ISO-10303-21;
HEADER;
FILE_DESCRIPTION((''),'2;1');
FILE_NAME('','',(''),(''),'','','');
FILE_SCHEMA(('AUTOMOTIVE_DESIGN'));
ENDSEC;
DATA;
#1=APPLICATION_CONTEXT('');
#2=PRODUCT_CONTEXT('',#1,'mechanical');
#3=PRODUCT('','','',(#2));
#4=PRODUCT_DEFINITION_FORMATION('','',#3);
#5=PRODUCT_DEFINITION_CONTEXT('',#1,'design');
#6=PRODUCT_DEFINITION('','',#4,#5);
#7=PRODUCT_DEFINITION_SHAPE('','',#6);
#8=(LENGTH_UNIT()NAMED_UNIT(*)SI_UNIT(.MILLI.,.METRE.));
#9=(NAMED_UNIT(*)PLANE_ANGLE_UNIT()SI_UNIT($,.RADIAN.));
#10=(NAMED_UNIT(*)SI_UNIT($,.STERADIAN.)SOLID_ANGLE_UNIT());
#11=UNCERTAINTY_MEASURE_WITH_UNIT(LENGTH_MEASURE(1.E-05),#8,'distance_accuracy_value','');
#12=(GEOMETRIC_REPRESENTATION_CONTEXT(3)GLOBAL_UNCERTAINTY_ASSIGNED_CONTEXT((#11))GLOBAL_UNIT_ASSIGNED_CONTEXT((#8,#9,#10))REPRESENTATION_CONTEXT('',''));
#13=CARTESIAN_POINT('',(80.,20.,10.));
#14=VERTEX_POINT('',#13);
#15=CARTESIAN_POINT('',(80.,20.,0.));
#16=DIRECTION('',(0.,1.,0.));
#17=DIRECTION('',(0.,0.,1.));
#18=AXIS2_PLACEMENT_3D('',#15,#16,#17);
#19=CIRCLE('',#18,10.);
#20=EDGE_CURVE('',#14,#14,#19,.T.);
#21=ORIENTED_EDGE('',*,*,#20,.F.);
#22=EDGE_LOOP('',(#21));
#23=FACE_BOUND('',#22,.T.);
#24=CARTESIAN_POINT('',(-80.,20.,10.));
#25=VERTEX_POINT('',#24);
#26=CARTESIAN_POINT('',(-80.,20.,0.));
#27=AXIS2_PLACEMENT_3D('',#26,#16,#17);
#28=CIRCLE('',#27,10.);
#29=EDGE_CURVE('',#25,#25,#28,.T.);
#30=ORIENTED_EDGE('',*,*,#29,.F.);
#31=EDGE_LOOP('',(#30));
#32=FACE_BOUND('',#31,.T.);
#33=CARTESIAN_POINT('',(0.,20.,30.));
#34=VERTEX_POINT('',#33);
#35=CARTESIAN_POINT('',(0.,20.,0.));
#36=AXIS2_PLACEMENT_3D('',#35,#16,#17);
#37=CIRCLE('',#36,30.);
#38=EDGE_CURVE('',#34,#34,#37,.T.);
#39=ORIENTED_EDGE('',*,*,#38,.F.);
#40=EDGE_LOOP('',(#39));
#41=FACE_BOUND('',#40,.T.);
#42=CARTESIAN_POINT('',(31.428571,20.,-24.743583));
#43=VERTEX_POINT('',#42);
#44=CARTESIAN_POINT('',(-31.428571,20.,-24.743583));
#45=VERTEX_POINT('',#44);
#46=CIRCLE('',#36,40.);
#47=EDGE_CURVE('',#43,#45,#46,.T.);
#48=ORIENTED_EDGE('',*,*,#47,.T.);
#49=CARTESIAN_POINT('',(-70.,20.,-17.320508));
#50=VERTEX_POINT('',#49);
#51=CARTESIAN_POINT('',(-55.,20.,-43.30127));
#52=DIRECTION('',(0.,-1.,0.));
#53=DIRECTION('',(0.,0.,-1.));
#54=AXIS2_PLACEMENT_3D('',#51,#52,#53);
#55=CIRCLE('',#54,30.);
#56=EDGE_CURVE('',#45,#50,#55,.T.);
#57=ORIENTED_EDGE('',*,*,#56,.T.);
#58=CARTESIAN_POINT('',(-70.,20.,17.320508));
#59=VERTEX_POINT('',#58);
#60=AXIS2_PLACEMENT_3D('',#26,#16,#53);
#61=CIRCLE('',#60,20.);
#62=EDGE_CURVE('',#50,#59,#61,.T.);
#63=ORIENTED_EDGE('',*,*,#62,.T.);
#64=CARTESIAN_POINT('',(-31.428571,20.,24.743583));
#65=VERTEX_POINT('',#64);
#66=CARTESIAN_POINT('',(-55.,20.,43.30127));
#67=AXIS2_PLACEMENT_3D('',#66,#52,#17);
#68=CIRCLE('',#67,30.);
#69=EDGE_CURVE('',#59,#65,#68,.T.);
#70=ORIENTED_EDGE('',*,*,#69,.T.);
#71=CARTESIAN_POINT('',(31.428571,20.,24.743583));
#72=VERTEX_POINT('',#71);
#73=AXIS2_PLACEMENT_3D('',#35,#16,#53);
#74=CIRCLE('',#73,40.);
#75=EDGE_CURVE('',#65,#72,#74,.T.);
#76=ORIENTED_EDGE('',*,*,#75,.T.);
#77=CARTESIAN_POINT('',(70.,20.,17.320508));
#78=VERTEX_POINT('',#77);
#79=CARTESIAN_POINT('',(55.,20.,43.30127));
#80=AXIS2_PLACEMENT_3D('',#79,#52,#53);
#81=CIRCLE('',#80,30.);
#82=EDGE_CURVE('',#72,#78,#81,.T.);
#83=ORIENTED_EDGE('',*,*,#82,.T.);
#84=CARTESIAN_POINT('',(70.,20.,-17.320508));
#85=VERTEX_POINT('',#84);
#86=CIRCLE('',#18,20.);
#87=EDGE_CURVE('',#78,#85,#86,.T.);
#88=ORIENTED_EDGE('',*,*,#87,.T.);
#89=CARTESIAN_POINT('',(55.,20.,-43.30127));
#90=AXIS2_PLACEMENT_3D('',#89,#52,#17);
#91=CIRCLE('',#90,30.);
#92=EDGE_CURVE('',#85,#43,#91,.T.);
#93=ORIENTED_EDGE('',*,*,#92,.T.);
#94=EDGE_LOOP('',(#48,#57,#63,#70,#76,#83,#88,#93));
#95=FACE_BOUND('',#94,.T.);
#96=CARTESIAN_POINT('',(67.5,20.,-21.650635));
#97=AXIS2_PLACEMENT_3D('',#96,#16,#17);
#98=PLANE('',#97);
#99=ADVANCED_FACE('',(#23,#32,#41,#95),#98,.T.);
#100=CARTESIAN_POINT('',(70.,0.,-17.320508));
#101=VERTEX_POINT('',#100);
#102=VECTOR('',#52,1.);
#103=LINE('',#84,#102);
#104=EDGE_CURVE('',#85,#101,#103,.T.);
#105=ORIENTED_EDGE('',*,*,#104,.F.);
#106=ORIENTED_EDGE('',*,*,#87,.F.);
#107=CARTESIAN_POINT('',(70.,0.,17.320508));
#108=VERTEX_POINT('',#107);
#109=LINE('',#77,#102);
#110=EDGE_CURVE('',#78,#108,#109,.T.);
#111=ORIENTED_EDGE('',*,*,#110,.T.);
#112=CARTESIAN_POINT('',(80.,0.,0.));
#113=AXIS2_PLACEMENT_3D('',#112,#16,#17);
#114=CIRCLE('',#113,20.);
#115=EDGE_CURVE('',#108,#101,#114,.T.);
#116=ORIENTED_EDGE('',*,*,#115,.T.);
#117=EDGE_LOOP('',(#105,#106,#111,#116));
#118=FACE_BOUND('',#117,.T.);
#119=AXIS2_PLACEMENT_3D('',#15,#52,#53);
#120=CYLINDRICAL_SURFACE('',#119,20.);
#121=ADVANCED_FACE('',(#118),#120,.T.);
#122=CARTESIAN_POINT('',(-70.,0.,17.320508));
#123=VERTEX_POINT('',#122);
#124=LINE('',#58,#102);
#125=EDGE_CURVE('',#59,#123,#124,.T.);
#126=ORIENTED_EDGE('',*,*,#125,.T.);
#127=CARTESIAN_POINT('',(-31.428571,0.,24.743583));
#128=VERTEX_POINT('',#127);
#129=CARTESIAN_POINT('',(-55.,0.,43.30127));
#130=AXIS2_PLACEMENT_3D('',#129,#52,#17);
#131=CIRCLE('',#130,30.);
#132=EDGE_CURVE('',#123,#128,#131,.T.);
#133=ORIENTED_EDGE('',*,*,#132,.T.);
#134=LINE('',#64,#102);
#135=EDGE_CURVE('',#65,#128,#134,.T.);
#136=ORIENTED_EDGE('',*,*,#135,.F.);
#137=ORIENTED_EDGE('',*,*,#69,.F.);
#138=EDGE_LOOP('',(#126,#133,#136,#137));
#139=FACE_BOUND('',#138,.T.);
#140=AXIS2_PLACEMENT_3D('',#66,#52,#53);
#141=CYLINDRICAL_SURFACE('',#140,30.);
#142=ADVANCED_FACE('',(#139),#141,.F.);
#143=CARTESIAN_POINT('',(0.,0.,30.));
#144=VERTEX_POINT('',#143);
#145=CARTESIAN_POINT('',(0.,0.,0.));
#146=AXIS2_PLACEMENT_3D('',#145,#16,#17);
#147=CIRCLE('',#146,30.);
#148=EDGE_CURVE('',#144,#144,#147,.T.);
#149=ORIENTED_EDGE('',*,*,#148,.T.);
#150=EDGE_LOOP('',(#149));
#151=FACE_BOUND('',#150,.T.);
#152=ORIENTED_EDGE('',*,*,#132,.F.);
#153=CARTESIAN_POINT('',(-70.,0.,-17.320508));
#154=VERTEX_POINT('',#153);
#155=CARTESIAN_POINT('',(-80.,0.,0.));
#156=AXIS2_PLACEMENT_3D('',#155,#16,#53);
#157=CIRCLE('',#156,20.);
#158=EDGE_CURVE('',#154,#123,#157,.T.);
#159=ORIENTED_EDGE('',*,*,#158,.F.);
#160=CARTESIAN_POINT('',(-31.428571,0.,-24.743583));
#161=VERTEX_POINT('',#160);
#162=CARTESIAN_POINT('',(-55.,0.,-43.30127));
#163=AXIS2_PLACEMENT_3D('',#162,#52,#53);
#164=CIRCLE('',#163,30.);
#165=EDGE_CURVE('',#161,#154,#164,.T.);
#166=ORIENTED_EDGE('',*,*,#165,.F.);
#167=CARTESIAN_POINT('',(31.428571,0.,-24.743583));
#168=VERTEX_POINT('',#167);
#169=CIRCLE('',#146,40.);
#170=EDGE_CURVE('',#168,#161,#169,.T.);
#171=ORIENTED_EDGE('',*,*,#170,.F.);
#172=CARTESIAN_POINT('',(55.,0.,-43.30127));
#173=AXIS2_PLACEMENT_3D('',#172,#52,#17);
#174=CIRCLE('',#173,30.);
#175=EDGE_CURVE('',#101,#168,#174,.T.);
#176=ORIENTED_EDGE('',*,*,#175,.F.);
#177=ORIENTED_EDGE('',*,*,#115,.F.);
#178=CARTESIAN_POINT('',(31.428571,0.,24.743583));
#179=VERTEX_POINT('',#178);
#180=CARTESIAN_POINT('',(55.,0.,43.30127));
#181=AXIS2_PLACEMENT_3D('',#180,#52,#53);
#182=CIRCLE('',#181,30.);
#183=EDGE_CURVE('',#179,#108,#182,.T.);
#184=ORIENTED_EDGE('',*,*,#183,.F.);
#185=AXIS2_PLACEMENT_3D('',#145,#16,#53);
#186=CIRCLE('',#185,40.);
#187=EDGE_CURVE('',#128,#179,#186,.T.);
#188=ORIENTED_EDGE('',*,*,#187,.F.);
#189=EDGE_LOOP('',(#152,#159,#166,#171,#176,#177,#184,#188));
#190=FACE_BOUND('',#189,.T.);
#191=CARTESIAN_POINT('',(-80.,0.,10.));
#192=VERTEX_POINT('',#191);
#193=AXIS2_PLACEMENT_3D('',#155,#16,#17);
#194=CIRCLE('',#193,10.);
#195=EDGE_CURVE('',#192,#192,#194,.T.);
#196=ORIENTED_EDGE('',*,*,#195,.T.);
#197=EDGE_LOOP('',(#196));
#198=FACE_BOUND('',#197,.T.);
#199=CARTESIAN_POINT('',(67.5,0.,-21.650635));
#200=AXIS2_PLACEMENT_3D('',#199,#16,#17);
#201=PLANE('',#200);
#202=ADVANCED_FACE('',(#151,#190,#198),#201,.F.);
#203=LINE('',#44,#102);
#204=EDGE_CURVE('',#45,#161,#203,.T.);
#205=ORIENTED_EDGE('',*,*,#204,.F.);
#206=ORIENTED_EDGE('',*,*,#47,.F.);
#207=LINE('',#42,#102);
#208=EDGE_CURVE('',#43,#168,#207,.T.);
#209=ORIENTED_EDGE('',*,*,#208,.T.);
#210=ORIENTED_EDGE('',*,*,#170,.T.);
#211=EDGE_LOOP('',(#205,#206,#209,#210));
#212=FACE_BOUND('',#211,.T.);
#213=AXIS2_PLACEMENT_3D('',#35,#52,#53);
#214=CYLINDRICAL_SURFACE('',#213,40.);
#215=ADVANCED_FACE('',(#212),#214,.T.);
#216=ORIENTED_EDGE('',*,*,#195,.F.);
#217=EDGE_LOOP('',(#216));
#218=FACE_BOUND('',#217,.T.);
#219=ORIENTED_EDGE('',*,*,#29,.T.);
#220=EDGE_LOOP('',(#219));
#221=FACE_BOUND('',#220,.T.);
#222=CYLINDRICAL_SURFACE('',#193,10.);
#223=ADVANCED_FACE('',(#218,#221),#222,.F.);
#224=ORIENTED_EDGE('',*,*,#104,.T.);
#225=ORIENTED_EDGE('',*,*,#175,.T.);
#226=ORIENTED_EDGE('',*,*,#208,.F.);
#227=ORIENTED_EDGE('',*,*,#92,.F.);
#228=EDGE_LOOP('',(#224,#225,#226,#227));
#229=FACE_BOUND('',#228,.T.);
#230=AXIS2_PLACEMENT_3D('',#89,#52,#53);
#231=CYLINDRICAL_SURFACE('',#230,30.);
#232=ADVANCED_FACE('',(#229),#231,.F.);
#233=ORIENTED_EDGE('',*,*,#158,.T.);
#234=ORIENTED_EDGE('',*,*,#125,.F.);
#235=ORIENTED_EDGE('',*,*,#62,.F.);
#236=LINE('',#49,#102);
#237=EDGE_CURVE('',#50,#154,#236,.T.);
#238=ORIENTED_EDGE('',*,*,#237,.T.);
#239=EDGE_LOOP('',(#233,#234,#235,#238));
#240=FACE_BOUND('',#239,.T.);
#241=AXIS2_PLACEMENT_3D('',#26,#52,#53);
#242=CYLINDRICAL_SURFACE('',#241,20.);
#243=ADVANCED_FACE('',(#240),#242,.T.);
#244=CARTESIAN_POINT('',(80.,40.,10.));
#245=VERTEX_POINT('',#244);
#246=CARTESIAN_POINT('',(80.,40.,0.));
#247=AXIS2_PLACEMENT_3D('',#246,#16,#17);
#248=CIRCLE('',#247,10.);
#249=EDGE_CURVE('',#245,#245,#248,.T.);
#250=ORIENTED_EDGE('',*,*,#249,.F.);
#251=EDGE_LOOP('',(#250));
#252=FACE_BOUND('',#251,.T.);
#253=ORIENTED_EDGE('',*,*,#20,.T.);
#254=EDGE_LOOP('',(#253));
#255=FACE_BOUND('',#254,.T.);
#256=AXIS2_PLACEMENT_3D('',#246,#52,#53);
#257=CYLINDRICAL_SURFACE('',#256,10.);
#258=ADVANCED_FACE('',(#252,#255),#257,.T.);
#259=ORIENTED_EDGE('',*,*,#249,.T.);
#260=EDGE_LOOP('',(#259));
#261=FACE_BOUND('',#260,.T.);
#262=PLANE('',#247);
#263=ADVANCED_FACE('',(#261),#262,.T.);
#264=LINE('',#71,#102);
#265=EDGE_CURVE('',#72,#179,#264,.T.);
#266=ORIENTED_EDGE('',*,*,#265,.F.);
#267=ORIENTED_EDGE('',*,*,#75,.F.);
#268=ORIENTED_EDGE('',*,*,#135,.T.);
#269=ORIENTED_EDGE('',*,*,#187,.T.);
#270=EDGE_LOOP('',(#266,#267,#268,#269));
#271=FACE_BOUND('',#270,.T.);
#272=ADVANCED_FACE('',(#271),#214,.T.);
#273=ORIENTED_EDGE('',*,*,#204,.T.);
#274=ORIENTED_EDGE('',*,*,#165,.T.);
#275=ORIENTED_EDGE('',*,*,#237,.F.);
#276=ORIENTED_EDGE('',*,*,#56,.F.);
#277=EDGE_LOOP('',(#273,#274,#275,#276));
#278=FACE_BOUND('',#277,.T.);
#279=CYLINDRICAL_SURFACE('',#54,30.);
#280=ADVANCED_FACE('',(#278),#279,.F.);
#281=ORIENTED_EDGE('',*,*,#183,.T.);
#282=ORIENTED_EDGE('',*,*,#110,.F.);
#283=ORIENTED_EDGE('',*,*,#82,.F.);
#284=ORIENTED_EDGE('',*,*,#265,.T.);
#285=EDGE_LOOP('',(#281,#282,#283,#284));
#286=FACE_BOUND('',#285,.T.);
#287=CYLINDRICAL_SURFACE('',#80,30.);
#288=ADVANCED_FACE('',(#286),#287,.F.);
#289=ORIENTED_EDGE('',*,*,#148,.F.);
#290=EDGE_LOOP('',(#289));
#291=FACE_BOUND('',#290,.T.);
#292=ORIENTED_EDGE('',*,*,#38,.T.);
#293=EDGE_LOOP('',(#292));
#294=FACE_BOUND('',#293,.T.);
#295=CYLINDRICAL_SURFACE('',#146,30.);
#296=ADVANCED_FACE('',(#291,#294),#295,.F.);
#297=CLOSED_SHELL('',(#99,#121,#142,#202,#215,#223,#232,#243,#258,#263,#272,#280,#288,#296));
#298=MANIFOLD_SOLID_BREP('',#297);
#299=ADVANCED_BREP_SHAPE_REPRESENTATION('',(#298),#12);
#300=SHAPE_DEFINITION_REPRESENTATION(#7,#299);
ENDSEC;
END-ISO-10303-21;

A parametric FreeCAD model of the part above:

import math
import FreeCAD as App
import Part
import Sketcher

V = App.Vector

doc = App.newDocument("Part")
body = doc.addObject("PartDesign::Body", "Body")

# Sketch on XZ plane
sketch1 = body.newObject("Sketcher::SketchObject", "Sketch")
sketch1.AttachmentSupport = (doc.getObject("XZ_Plane"), [""])
sketch1.MapMode = "FlatFace"
sketch1.addGeometry([
    Part.ArcOfCircle(Part.Circle(V(80, 0, 0), V(0, 0, 1), 20), math.radians(-120), math.radians(120)),  # 0
    Part.ArcOfCircle(Part.Circle(V(55, -43, 0), V(0, 0, 1), 30), math.radians(60), math.radians(142)),  # 1
    Part.ArcOfCircle(Part.Circle(V(0, 0, 0), V(0, 0, 1), 40), math.radians(-142), math.radians(-38)),  # 2
    Part.ArcOfCircle(Part.Circle(V(-55, -43, 0), V(0, 0, 1), 30), math.radians(38), math.radians(120)),  # 3
    Part.ArcOfCircle(Part.Circle(V(-80, 0, 0), V(0, 0, 1), 20), math.radians(60), math.radians(300)),  # 4
    Part.ArcOfCircle(Part.Circle(V(-55, 43, 0), V(0, 0, 1), 30), math.radians(-120), math.radians(-38)),  # 5
    Part.ArcOfCircle(Part.Circle(V(0, 0, 0), V(0, 0, 1), 40), math.radians(38), math.radians(142)),  # 6
    Part.ArcOfCircle(Part.Circle(V(55, 43, 0), V(0, 0, 1), 30), math.radians(-142), math.radians(-60)),  # 7
], False)
sketch1.addConstraint([
    Sketcher.Constraint("Tangent", 0, 1, 1, 1),
    Sketcher.Constraint("Tangent", 1, 2, 2, 2),
    Sketcher.Constraint("Tangent", 2, 1, 3, 1),
    Sketcher.Constraint("Tangent", 3, 2, 4, 2),
    Sketcher.Constraint("Tangent", 4, 1, 5, 1),
    Sketcher.Constraint("Tangent", 5, 2, 6, 2),
    Sketcher.Constraint("Tangent", 6, 1, 7, 1),
    Sketcher.Constraint("Tangent", 7, 2, 0, 2),
    Sketcher.Constraint("Coincident", 2, 3, -1, 1),
    Sketcher.Constraint("Coincident", 6, 3, -1, 1),
    Sketcher.Constraint("Equal", 1, 3),
    Sketcher.Constraint("Equal", 0, 4),
    Sketcher.Constraint("Equal", 3, 5),
    Sketcher.Constraint("Equal", 2, 6),
    Sketcher.Constraint("Equal", 5, 7),
    Sketcher.Constraint("Symmetric", 0, 3, 4, 3, -1, 1),
    Sketcher.Constraint("PointOnObject", 0, 3, -1),
    Sketcher.Constraint("Radius", 0, 20.0),
    Sketcher.Constraint("Radius", 1, 30.0),
    Sketcher.Constraint("Radius", 2, 40.0),
    Sketcher.Constraint("DistanceX", -1, 1, 0, 3, 80.0),
])
pad1 = body.newObject("PartDesign::Pad", "Pad")
pad1.Profile = sketch1
pad1.Length = 20
pad1.Reversed = True

# Sketch on XZ plane
sketch2 = body.newObject("Sketcher::SketchObject", "Sketch001")
sketch2.AttachmentSupport = (doc.getObject("XZ_Plane"), [""])
sketch2.MapMode = "FlatFace"
sketch2.AttachmentOffset = App.Placement(V(0, 0, -20), App.Rotation())
sketch2.addGeometry(Part.Circle(V(0, 0, 0), V(0, 0, 1), 30), False)
sketch2.addConstraint([
    Sketcher.Constraint("Coincident", 0, 3, -1, 1),
    Sketcher.Constraint("Diameter", 0, 60.0),
])
pocket1 = body.newObject("PartDesign::Pocket", "Pocket")
pocket1.Profile = sketch2
pocket1.Type = "ThroughAll"
pocket1.Reversed = True

# Sketch on XZ plane
sketch3 = body.newObject("Sketcher::SketchObject", "Sketch002")
sketch3.AttachmentSupport = (doc.getObject("XZ_Plane"), [""])
sketch3.MapMode = "FlatFace"
sketch3.AttachmentOffset = App.Placement(V(0, 0, -20), App.Rotation())
sketch3.addGeometry(Part.Circle(V(-80, 0, 0), V(0, 0, 1), 10), False)
sketch3.addConstraint([
    Sketcher.Constraint("PointOnObject", 0, 3, -1),
    Sketcher.Constraint("Diameter", 0, 20.0),
    Sketcher.Constraint("DistanceX", 0, 3, -1, 1, 80.0),
])
pocket2 = body.newObject("PartDesign::Pocket", "Pocket001")
pocket2.Profile = sketch3
pocket2.Type = "ThroughAll"
pocket2.Reversed = True

# Sketch on XZ plane
sketch4 = body.newObject("Sketcher::SketchObject", "Sketch003")
sketch4.AttachmentSupport = (doc.getObject("XZ_Plane"), [""])
sketch4.MapMode = "FlatFace"
sketch4.AttachmentOffset = App.Placement(V(0, 0, -20), App.Rotation())
sketch4.addGeometry(Part.Circle(V(80, 0, 0), V(0, 0, 1), 10), False)
sketch4.addConstraint([
    Sketcher.Constraint("PointOnObject", 0, 3, -1),
    Sketcher.Constraint("Diameter", 0, 20.0),
    Sketcher.Constraint("DistanceX", -1, 1, 0, 3, 80.0),
])
pad2 = body.newObject("PartDesign::Pad", "Pad001")
pad2.Profile = sketch4
pad2.Length = 20
pad2.Reversed = True

doc.recompute()
